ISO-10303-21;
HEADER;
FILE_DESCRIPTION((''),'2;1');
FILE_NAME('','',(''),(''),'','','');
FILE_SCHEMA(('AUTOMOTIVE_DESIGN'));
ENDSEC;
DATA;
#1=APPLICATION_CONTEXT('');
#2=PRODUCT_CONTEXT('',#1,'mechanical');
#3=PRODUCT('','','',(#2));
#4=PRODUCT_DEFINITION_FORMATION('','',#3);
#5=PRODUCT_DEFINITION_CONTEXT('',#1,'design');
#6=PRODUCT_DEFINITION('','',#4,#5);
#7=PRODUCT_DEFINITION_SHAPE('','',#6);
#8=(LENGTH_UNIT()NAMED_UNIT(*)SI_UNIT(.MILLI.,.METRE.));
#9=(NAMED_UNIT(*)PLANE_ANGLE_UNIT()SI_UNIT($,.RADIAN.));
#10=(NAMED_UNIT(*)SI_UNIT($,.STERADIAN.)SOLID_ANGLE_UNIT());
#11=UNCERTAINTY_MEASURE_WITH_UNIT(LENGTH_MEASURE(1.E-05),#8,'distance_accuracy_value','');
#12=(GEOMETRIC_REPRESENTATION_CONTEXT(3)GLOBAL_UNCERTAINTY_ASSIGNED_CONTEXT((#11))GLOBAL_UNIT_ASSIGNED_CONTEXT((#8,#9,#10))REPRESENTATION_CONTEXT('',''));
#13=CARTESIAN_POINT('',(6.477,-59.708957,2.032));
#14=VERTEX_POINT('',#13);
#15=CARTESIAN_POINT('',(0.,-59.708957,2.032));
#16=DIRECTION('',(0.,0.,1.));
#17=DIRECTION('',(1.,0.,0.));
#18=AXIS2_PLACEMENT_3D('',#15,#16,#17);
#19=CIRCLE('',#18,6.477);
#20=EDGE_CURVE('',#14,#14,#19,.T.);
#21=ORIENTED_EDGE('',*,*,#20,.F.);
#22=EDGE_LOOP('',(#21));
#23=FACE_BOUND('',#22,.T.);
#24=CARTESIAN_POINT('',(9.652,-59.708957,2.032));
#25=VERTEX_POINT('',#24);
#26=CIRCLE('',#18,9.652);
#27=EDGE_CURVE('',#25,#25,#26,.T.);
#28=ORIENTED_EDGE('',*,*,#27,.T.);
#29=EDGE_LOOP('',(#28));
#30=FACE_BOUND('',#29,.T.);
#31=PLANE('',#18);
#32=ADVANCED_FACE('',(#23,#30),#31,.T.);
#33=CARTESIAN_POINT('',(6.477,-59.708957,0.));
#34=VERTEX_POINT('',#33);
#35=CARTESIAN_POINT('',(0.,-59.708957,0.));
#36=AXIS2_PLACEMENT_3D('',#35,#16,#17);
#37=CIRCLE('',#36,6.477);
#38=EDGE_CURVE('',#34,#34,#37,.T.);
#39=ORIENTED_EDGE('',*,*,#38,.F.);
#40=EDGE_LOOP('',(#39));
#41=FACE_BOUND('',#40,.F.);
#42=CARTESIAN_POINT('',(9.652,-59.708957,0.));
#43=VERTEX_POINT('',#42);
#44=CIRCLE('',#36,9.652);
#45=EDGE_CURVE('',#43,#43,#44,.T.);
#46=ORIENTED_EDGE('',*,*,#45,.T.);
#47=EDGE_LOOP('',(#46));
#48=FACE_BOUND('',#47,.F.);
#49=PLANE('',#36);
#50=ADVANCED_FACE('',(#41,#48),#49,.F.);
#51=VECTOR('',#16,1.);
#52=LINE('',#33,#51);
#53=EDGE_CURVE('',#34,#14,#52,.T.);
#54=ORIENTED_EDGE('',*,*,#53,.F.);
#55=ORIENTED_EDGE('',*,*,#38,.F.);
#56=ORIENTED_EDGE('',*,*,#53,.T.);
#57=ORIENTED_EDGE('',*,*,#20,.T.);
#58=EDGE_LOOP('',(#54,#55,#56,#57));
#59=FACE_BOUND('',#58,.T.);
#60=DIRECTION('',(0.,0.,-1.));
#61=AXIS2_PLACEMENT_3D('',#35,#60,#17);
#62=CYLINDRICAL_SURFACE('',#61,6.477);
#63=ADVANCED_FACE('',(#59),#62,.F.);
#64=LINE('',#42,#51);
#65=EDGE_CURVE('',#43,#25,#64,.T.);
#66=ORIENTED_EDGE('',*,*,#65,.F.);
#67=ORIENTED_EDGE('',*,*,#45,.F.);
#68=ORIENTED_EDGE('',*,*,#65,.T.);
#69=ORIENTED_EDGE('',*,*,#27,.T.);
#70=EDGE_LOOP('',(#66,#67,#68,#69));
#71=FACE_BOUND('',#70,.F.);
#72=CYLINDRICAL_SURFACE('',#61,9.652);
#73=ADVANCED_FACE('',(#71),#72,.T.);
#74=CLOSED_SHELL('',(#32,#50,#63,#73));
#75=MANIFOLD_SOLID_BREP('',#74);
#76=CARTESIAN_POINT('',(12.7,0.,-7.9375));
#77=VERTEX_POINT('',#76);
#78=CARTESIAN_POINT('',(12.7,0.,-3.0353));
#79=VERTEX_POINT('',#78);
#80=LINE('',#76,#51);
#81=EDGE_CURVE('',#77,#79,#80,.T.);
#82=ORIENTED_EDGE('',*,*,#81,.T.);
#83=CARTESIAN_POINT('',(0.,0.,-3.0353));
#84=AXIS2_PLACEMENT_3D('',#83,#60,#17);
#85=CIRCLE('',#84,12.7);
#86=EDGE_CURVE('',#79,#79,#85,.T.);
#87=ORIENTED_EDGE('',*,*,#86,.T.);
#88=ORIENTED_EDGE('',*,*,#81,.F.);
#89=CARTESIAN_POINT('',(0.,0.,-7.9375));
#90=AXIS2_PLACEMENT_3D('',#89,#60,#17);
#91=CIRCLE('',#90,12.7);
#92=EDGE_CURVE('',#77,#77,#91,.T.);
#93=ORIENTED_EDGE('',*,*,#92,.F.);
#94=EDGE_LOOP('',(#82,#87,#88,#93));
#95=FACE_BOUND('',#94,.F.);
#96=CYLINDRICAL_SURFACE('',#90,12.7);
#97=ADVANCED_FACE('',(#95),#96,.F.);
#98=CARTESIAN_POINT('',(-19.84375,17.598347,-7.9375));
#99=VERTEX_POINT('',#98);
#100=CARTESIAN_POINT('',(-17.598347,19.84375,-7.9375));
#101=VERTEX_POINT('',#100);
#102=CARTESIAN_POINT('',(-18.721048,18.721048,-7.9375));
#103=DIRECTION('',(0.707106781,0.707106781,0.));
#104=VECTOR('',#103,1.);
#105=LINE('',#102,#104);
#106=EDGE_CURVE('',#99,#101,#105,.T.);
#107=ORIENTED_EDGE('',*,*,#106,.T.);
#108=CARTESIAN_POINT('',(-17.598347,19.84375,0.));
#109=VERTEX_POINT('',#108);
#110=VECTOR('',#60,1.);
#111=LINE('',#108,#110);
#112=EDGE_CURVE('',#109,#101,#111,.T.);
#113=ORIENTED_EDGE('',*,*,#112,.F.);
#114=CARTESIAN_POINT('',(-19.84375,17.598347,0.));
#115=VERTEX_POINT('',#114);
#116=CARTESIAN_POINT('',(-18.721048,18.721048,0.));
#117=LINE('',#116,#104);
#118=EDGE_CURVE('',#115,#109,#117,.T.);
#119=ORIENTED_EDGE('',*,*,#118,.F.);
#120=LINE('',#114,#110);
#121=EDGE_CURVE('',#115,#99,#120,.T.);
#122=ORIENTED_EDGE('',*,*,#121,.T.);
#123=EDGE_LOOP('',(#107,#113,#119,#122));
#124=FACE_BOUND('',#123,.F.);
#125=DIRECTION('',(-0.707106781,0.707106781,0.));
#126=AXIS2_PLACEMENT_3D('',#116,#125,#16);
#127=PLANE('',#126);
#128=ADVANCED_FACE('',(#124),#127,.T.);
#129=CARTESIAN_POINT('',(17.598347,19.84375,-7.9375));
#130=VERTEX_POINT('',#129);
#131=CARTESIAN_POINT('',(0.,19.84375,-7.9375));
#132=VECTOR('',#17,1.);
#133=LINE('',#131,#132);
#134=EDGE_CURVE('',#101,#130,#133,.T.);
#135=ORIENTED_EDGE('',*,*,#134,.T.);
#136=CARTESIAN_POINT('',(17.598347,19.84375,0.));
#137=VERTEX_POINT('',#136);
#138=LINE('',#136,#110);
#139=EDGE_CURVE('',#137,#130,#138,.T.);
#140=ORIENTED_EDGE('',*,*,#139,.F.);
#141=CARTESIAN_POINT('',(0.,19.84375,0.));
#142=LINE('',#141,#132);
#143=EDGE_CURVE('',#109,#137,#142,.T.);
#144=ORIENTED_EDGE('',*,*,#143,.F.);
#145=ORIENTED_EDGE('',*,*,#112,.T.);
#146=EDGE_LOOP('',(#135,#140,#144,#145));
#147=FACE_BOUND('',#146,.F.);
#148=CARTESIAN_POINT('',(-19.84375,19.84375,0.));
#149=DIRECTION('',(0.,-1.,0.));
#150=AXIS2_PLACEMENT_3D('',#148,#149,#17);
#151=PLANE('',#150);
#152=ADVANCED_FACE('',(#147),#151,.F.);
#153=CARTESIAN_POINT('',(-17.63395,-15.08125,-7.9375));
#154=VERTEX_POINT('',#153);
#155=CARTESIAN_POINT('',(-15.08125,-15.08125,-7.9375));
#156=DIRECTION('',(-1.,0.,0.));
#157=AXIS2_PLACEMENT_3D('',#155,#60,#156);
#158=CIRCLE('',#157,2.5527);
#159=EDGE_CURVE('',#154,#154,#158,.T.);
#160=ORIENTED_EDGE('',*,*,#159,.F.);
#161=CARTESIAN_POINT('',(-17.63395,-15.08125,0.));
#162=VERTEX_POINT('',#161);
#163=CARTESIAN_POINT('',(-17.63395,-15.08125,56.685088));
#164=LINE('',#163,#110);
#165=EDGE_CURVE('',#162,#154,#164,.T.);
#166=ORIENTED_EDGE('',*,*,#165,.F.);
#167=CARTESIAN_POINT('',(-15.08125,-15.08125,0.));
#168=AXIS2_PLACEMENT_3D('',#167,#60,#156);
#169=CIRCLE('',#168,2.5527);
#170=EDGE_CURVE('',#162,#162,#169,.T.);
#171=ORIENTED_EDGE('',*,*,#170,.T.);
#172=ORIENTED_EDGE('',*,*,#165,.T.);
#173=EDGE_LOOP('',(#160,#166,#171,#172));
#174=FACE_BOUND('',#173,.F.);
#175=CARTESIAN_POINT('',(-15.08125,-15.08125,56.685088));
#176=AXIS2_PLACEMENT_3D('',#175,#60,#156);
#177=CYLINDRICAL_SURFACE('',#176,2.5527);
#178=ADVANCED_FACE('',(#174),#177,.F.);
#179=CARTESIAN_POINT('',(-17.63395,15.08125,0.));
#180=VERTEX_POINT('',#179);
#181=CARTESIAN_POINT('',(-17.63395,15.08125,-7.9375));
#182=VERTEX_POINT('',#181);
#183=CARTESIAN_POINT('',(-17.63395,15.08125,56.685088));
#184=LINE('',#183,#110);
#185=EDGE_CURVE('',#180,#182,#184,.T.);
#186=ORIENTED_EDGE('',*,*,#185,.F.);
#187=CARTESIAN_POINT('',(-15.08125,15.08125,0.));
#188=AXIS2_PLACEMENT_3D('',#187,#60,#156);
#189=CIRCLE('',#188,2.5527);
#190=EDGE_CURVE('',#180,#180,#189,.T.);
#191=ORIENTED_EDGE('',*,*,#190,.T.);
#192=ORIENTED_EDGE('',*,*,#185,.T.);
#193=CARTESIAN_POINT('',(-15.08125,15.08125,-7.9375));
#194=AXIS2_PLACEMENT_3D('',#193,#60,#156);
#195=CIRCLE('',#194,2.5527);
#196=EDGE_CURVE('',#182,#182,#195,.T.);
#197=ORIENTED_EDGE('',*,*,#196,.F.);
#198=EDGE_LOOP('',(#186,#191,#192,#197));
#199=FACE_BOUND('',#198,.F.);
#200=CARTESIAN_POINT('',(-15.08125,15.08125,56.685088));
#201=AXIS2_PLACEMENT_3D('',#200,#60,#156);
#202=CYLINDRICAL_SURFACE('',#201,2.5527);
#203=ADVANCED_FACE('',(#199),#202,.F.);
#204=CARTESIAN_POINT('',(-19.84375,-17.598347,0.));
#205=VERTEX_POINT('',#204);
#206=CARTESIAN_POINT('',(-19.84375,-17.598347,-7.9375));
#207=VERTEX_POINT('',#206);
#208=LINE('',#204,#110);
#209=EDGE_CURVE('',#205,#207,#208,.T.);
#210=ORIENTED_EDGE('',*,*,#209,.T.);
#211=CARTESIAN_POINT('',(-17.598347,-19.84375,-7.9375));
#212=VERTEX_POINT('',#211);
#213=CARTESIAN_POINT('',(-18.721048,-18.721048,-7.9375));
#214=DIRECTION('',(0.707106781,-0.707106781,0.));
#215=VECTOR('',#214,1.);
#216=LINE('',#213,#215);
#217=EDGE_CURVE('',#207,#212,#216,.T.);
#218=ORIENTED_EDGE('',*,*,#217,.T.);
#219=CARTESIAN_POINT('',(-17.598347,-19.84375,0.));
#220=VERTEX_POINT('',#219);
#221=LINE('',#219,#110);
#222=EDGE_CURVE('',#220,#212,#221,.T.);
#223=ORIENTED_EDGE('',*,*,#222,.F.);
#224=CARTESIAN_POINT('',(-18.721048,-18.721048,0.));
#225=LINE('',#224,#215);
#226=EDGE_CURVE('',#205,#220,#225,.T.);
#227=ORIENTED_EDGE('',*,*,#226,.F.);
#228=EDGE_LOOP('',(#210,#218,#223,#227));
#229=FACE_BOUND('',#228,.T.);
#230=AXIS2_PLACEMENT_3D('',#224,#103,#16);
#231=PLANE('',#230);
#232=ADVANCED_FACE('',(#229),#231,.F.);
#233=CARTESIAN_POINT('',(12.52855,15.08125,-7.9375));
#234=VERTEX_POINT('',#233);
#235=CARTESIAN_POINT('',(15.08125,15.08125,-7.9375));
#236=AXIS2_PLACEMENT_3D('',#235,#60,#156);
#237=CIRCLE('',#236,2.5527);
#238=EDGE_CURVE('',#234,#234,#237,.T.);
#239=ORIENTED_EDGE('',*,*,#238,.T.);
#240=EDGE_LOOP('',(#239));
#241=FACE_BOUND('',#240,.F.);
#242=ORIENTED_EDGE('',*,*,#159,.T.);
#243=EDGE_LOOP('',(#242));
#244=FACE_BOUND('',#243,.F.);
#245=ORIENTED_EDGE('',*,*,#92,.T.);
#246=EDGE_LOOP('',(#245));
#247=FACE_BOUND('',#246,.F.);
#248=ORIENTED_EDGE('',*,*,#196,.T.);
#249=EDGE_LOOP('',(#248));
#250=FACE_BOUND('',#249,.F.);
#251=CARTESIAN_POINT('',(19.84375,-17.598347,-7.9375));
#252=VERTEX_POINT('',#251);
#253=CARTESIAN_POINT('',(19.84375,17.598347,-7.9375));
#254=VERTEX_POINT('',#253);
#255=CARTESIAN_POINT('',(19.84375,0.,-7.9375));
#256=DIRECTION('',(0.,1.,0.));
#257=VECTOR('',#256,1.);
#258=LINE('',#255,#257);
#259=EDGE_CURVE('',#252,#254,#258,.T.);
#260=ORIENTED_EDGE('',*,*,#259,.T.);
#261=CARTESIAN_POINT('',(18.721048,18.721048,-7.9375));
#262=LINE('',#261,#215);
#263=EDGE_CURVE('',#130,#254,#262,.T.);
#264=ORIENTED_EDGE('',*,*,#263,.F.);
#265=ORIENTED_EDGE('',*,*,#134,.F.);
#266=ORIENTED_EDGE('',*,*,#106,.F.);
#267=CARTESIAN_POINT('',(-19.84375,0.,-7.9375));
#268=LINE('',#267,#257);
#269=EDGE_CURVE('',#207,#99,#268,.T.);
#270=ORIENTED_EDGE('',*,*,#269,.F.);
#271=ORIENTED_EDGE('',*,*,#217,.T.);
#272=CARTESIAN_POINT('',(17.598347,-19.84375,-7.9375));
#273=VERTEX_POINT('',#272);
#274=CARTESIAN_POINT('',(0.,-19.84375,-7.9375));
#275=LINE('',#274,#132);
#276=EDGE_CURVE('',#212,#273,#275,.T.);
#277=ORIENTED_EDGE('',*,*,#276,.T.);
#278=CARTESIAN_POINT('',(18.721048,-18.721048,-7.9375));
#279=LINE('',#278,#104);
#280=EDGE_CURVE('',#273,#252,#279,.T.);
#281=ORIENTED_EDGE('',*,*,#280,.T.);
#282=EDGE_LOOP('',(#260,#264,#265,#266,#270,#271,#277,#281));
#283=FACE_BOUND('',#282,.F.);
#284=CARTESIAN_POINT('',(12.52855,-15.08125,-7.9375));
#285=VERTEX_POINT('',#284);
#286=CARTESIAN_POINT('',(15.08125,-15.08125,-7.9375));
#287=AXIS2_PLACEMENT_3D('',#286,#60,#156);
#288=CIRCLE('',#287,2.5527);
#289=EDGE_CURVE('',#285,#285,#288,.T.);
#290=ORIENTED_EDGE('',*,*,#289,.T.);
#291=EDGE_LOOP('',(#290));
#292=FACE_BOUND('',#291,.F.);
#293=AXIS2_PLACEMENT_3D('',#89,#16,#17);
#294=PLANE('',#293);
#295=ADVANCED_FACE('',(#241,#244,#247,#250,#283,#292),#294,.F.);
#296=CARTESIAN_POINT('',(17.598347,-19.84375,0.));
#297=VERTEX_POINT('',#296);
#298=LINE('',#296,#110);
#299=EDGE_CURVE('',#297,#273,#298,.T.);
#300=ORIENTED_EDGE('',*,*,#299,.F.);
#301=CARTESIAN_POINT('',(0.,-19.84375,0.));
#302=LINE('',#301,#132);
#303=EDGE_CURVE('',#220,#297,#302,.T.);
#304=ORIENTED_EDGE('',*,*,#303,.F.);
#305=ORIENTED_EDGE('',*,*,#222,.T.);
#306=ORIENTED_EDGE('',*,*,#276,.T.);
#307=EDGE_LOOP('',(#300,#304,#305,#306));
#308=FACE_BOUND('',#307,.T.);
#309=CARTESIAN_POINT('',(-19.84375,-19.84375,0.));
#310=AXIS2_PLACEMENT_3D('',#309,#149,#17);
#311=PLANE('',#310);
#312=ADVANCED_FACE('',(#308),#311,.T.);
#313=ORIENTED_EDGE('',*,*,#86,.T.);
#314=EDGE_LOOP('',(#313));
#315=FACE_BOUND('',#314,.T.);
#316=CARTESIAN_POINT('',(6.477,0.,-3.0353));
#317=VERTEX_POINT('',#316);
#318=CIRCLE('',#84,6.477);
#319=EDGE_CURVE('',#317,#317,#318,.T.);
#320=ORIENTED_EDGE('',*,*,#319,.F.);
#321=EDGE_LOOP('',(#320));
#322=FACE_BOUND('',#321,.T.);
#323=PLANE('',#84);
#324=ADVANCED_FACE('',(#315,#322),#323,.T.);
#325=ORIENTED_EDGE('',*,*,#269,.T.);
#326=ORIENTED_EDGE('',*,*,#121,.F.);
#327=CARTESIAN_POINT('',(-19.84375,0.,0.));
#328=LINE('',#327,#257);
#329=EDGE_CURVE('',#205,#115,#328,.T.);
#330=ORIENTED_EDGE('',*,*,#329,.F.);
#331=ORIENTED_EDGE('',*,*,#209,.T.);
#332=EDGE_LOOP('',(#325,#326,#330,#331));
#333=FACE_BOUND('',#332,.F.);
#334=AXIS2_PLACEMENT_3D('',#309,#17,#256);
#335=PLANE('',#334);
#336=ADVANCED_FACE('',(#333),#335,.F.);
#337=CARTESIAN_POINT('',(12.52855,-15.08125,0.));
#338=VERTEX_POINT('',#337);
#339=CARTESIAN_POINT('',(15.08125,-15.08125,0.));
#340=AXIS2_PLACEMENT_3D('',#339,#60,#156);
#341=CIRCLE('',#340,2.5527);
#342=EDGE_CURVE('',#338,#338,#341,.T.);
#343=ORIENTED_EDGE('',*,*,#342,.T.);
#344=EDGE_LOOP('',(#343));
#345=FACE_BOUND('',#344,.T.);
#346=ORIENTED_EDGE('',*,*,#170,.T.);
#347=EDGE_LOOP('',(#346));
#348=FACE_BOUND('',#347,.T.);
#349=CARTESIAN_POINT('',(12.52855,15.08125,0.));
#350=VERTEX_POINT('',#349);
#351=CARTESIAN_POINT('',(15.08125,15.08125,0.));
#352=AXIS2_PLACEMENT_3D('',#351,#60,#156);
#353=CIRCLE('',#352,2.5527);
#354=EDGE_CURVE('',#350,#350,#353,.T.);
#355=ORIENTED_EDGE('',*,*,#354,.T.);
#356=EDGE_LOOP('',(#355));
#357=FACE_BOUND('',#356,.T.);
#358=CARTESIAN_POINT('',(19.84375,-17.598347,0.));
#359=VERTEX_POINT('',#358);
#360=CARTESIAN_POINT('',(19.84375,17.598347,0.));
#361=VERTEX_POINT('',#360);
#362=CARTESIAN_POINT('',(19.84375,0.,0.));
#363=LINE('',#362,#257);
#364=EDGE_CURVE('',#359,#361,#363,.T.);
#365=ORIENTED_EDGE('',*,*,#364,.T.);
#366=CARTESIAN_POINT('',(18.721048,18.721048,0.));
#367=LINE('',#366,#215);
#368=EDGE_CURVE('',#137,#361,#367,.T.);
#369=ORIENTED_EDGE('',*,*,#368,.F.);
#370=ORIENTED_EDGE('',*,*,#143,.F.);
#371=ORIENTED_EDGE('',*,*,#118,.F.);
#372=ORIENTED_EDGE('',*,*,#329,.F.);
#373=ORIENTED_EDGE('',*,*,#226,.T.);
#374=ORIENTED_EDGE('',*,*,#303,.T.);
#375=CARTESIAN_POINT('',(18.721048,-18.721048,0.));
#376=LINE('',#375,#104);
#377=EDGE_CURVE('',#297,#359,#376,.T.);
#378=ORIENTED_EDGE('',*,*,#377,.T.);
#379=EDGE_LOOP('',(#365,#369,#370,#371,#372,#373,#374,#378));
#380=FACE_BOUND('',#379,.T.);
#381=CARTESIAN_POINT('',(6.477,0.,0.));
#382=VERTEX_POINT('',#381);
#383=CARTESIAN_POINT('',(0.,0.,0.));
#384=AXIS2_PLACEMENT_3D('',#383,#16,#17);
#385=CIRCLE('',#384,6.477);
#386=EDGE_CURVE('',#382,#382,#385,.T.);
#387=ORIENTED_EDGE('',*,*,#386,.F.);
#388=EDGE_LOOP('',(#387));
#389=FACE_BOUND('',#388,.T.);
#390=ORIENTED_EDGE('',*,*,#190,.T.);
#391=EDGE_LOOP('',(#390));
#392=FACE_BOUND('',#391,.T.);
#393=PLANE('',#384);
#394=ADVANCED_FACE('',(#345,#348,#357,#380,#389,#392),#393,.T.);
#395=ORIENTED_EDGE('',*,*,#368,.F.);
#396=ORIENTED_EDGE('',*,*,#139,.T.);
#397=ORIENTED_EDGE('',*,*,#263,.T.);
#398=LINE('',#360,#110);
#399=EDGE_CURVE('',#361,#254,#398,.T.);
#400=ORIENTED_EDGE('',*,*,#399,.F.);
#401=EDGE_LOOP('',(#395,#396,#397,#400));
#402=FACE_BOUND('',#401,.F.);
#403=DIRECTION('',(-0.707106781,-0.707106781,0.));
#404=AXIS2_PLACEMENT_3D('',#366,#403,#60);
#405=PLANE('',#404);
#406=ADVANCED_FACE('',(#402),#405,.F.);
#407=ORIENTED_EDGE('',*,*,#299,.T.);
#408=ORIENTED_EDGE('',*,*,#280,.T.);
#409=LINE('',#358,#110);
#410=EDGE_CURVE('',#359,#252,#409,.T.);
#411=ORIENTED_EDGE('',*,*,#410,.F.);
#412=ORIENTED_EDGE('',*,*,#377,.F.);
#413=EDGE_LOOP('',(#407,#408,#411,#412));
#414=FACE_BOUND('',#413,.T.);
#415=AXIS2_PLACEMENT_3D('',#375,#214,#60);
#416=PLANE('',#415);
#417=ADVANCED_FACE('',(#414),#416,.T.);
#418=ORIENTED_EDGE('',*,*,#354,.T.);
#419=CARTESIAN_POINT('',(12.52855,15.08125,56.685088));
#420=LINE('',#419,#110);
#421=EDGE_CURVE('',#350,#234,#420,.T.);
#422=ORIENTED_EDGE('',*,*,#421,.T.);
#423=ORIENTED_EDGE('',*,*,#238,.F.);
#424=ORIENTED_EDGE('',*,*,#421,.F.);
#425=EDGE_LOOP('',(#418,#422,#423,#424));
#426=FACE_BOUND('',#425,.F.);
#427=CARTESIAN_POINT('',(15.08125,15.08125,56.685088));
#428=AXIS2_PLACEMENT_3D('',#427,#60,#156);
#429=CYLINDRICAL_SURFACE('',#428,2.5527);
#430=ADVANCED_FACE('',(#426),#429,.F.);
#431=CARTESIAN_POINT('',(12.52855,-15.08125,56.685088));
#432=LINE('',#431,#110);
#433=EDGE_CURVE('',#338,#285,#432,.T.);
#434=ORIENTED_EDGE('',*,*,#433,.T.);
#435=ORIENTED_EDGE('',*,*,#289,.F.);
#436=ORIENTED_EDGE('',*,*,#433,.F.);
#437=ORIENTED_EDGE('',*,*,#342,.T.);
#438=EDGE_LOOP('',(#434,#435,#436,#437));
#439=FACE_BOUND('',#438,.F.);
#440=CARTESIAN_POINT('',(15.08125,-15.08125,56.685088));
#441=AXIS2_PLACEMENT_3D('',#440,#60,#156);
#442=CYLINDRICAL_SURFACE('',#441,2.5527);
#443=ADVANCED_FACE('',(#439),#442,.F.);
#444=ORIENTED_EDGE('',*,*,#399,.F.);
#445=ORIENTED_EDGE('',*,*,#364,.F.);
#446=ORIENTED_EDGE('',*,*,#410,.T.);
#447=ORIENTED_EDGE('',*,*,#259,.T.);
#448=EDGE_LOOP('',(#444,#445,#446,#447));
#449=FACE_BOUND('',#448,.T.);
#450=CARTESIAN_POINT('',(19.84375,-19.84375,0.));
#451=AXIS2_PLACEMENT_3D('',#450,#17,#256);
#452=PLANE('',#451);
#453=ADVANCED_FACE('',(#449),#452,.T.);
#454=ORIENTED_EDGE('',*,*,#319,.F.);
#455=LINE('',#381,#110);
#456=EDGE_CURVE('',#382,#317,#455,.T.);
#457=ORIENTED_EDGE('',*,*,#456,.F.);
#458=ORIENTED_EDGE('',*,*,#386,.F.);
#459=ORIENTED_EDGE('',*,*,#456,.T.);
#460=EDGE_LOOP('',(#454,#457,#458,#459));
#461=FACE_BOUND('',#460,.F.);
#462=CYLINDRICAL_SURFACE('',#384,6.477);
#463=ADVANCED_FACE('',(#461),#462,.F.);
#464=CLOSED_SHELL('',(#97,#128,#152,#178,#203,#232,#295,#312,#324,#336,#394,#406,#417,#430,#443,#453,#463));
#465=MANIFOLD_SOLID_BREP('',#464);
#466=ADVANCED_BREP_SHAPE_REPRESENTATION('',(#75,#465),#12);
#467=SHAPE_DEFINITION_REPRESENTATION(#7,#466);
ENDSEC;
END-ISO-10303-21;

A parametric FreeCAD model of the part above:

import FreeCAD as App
import Part
import Sketcher
Q = App.Units.Quantity


def edges_at(feature, points):
    """Names of the edges that pass closest to the given points."""
    edges = feature.Shape.Edges
    near = lambda p: min(range(len(edges)), key=lambda i: edges[i].distToShape(Part.Vertex(*p))[0])
    return sorted({f"Edge{near(p) + 1}" for p in points})

doc = App.newDocument("Part")
body = doc.addObject("PartDesign::Body", "Body")

# Sketch on XY plane
sketch1 = body.newObject("Sketcher::SketchObject", "Sketch")
sketch1.AttachmentSupport = (doc.getObject("XY_Plane"), [""])
sketch1.MapMode = "FlatFace"
sketch1.addGeometry([
    Part.LineSegment(App.Vector(-20, 20, 0), App.Vector(-20, -20, 0)),  # 0
    Part.LineSegment(App.Vector(-20, -20, 0), App.Vector(20, -20, 0)),  # 1
    Part.LineSegment(App.Vector(20, -20, 0), App.Vector(20, 20, 0)),  # 2
    Part.LineSegment(App.Vector(20, 20, 0), App.Vector(-20, 20, 0)),  # 3
    Part.Circle(App.Vector(0, 0, 0), App.Vector(0, 0, 1), 6),  # 4
], False)
sketch1.addConstraint([
    Sketcher.Constraint("Coincident", 0, 2, 1, 1),
    Sketcher.Constraint("Coincident", 1, 2, 2, 1),
    Sketcher.Constraint("Coincident", 2, 2, 3, 1),
    Sketcher.Constraint("Coincident", 3, 2, 0, 1),
    Sketcher.Constraint("Vertical", 0),
    Sketcher.Constraint("Horizontal", 1),
    Sketcher.Constraint("Vertical", 2),
    Sketcher.Constraint("Horizontal", 3),
    Sketcher.Constraint("Coincident", 4, 3, -1, 1),
    Sketcher.Constraint("Symmetric", 0, 2, 2, 2, -1, 1),
    Sketcher.Constraint("Equal", 3, 0),
    Sketcher.Constraint("Diameter", 4, Q("0.51 in")),
    Sketcher.Constraint("DistanceX", 1, 1, 1, 2, Q("1.5625 in")),
])
pad1 = body.newObject("PartDesign::Pad", "Pad")
pad1.Profile = sketch1
pad1.Length = Q("0.3125 in")
pad1.Reversed = True

# Sketch on XY plane
sketch2 = body.newObject("Sketcher::SketchObject", "Sketch001")
sketch2.AttachmentSupport = (doc.getObject("XY_Plane"), [""])
sketch2.MapMode = "FlatFace"
sketch2.AttachmentOffset = App.Placement(App.Vector(0, 0, -0.3125 * 25.4), App.Rotation())
sketch2.addGeometry([
    Part.Circle(App.Vector(0, 0, 0), App.Vector(0, 0, 1), 13),
    Part.Circle(App.Vector(0, 0, 0), App.Vector(0, 0, 1), 6),
], False)
sketch2.addConstraint([
    Sketcher.Constraint("Coincident", 0, 3, -1, 1),
    Sketcher.Constraint("Coincident", 1, 3, -1, 1),
    Sketcher.Constraint("Diameter", 0, Q("1 in")),
    Sketcher.Constraint("Diameter", 1, Q("0.51 in")),
])
pocket1 = body.newObject("PartDesign::Pocket", "Pocket")
pocket1.Profile = sketch2
pocket1.Length = Q("0.193 in")
pocket1.Reversed = True

# Sketch on XY plane
sketch3 = body.newObject("Sketcher::SketchObject", "Sketch002")
sketch3.AttachmentSupport = (doc.getObject("XY_Plane"), [""])
sketch3.MapMode = "FlatFace"
sketch3.addGeometry([
    Part.Circle(App.Vector(-15.1, -15.1, 0), App.Vector(0, 0, 1), 2.6),
    Part.Circle(App.Vector(15.1, -15.1, 0), App.Vector(0, 0, 1), 2.6),
    Part.Circle(App.Vector(15.1, 15.1, 0), App.Vector(0, 0, 1), 2.6),
    Part.Circle(App.Vector(-15.1, 15.1, 0), App.Vector(0, 0, 1), 2.6),
], False)
sketch3.addConstraint([
    Sketcher.Constraint("Equal", 0, 1),
    Sketcher.Constraint("Equal", 1, 2),
    Sketcher.Constraint("Equal", 2, 3),
    Sketcher.Constraint("Symmetric", 0, 3, 2, 3, -1, 1),
    Sketcher.Constraint("Symmetric", 1, 3, 3, 3, -1, 1),
    Sketcher.Constraint("Symmetric", 0, 3, 1, 3, -2),
    Sketcher.Constraint("Diameter", 0, Q("0.201 in")),
    Sketcher.Constraint("DistanceX", 0, 3, -1, 1, Q("0.59375 in")),
    Sketcher.Constraint("DistanceY", 0, 3, -1, 1, Q("0.59375 in")),
])
doc.recompute()
hole = body.newObject("PartDesign::Hole", "Hole")
hole.Profile = sketch3
hole.ThreadType = "None"
hole.Diameter = Q("0.201 in")
hole.DepthType = "ThroughAll"
doc.recompute()

chamfer = body.newObject("PartDesign::Chamfer", "Chamfer")
chamfer.Base = (hole, edges_at(hole, [
    (-19.844, -19.844, -3.969),
    (-19.844, 19.844, -3.969),
    (19.844, 19.844, -3.969),
    (19.844, -19.844, -3.969),
]))
chamfer.Size = 2.245403
body2 = doc.addObject("PartDesign::Body", "Body001")

# Sketch on XY plane
sketch4 = body2.newObject("Sketcher::SketchObject", "Sketch003")
sketch4.AttachmentSupport = (doc.getObject("XY_Plane001"), [""])
sketch4.MapMode = "FlatFace"
sketch4.addGeometry([
    Part.Circle(App.Vector(0, -60, 0), App.Vector(0, 0, 1), 10),
    Part.Circle(App.Vector(0, -60, 0), App.Vector(0, 0, 1), 6),
], False)
sketch4.addConstraint([
    Sketcher.Constraint("Coincident", 1, 3, 0, 3),
    Sketcher.Constraint("PointOnObject", 0, 3, -2),
    Sketcher.Constraint("Diameter", 0, Q("0.76 in")),
    Sketcher.Constraint("Diameter", 1, Q("0.51 in")),
    Sketcher.Constraint("DistanceY", 0, 3, -1, 1, 59.708957),
])
pad2 = body2.newObject("PartDesign::Pad", "Pad001")
pad2.Profile = sketch4
pad2.Length = Q("0.08 in")

doc.recompute()
